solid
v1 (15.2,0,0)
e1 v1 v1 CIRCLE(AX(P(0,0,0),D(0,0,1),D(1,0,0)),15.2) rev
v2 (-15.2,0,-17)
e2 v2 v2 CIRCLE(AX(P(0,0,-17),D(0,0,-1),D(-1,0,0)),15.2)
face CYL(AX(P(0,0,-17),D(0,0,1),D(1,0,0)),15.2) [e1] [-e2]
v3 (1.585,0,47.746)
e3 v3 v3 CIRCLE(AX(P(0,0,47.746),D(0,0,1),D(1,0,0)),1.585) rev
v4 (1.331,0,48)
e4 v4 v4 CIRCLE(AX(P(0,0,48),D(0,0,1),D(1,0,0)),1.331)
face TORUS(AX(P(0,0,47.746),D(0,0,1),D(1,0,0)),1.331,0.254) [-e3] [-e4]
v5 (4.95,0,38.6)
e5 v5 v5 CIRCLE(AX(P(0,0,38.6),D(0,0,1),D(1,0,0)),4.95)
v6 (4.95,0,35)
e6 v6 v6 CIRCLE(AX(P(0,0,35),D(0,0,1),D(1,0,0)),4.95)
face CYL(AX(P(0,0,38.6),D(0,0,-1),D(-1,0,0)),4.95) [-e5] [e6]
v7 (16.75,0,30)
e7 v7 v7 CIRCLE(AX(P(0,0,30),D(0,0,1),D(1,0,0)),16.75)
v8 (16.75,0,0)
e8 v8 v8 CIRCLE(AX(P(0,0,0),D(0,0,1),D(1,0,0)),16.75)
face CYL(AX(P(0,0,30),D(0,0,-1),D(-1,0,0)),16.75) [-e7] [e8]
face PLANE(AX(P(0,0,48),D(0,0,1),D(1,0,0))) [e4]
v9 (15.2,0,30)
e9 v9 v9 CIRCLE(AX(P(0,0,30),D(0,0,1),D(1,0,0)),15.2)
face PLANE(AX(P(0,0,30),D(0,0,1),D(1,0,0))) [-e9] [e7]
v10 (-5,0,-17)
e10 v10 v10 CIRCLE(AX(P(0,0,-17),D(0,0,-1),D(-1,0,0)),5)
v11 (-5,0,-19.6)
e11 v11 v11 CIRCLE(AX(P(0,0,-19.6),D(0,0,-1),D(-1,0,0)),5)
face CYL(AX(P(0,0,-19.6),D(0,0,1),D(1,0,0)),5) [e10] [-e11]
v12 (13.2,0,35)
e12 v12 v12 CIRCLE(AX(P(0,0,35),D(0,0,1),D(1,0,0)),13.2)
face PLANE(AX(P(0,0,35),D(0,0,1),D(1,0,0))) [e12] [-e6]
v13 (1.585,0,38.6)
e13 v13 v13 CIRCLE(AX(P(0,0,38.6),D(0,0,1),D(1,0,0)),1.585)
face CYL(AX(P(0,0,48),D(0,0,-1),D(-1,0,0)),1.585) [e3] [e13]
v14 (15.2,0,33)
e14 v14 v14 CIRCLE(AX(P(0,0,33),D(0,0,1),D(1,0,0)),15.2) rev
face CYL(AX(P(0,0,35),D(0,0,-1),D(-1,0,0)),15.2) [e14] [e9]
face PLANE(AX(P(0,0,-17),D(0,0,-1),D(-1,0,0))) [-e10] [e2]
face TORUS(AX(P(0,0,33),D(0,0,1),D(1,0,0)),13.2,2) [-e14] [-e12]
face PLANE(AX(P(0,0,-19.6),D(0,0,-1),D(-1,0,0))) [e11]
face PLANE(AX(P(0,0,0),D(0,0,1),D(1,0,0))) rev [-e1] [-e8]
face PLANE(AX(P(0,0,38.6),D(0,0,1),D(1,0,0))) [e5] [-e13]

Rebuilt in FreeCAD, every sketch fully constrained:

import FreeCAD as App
import Part
import Sketcher
Q = App.Units.Quantity


def edges_at(feature, points):
    """Names of the edges that pass closest to the given points."""
    edges = feature.Shape.Edges
    near = lambda p: min(range(len(edges)), key=lambda i: edges[i].distToShape(Part.Vertex(*p))[0])
    return sorted({f"Edge{near(p) + 1}" for p in points})

doc = App.newDocument("Part")
body = doc.addObject("PartDesign::Body", "Body")

# Sketch on XY plane
sketch1 = body.newObject("Sketcher::SketchObject", "Sketch")
sketch1.AttachmentSupport = (doc.getObject("XY_Plane"), [""])
sketch1.MapMode = "FlatFace"
sketch1.addGeometry(Part.Circle(App.Vector(0, 0, 0), App.Vector(0, 0, 1), 16.75), False)
sketch1.addConstraint([
    Sketcher.Constraint("Coincident", 0, 3, -1, 1),
    Sketcher.Constraint("Diameter", 0, Q("33.5 mm")),
])
pad1 = body.newObject("PartDesign::Pad", "Pad")
pad1.Profile = sketch1
pad1.Length = 30

# Sketch on XY plane
sketch2 = body.newObject("Sketcher::SketchObject", "Sketch001")
sketch2.AttachmentSupport = (doc.getObject("XY_Plane"), [""])
sketch2.MapMode = "FlatFace"
sketch2.AttachmentOffset = App.Placement(App.Vector(0, 0, 30), App.Rotation())
sketch2.addGeometry(Part.Circle(App.Vector(0, 0, 0), App.Vector(0, 0, 1), 15.2), False)
sketch2.addConstraint([
    Sketcher.Constraint("Coincident", 0, 3, -1, 1),
    Sketcher.Constraint("Diameter", 0, Q("30.4 mm")),
])
pad2 = body.newObject("PartDesign::Pad", "Pad001")
pad2.Profile = sketch2
pad2.Length = 5
doc.recompute()

fillet = body.newObject("PartDesign::Fillet", "Fillet")
fillet.Base = (pad2, edges_at(pad2, [(-15.2, 0, 35)]))
fillet.Radius = 2

# Sketch on XY plane
sketch3 = body.newObject("Sketcher::SketchObject", "Sketch002")
sketch3.AttachmentSupport = (doc.getObject("XY_Plane"), [""])
sketch3.MapMode = "FlatFace"
sketch3.addGeometry(Part.Circle(App.Vector(0, 0, 0), App.Vector(0, 0, 1), 15.2), False)
sketch3.addConstraint([
    Sketcher.Constraint("Coincident", 0, 3, -1, 1),
    Sketcher.Constraint("Diameter", 0, Q("30.4 mm")),
])
pad3 = body.newObject("PartDesign::Pad", "Pad002")
pad3.Profile = sketch3
pad3.Length = 17
pad3.Reversed = True

# Sketch on XY plane
sketch4 = body.newObject("Sketcher::SketchObject", "Sketch003")
sketch4.AttachmentSupport = (doc.getObject("XY_Plane"), [""])
sketch4.MapMode = "FlatFace"
sketch4.AttachmentOffset = App.Placement(App.Vector(0, 0, 35), App.Rotation())
sketch4.addGeometry(Part.Circle(App.Vector(0, 0, 0), App.Vector(0, 0, 1), 4.95), False)
sketch4.addConstraint([
    Sketcher.Constraint("Coincident", 0, 3, -1, 1),
    Sketcher.Constraint("Diameter", 0, Q("9.9 mm")),
])
pad4 = body.newObject("PartDesign::Pad", "Pad003")
pad4.Profile = sketch4
pad4.Length = 3.6

# Sketch on XY plane
sketch5 = body.newObject("Sketcher::SketchObject", "Sketch004")
sketch5.AttachmentSupport = (doc.getObject("XY_Plane"), [""])
sketch5.MapMode = "FlatFace"
sketch5.AttachmentOffset = App.Placement(App.Vector(0, 0, -17), App.Rotation())
sketch5.addGeometry(Part.Circle(App.Vector(0, 0, 0), App.Vector(0, 0, 1), 5), False)
sketch5.addConstraint([
    Sketcher.Constraint("Coincident", 0, 3, -1, 1),
    Sketcher.Constraint("Diameter", 0, Q("10 mm")),
])
pad5 = body.newObject("PartDesign::Pad", "Pad004")
pad5.Profile = sketch5
pad5.Length = 2.6
pad5.Reversed = True

# Sketch on XY plane
sketch6 = body.newObject("Sketcher::SketchObject", "Sketch005")
sketch6.AttachmentSupport = (doc.getObject("XY_Plane"), [""])
sketch6.MapMode = "FlatFace"
sketch6.AttachmentOffset = App.Placement(App.Vector(0, 0, 38.6), App.Rotation())
sketch6.addGeometry(Part.Circle(App.Vector(0, 0, 0), App.Vector(0, 0, 1), 1.585), False)
sketch6.addConstraint([
    Sketcher.Constraint("Coincident", 0, 3, -1, 1),
    Sketcher.Constraint("Diameter", 0, Q("3.17 mm")),
])
pad6 = body.newObject("PartDesign::Pad", "Pad005")
pad6.Profile = sketch6
pad6.Length = 9.4
doc.recompute()

fillet2 = body.newObject("PartDesign::Fillet", "Fillet001")
fillet2.Base = (pad6, edges_at(pad6, [(-1.585, 0, 48)]))
fillet2.Radius = 0.254

doc.recompute()
